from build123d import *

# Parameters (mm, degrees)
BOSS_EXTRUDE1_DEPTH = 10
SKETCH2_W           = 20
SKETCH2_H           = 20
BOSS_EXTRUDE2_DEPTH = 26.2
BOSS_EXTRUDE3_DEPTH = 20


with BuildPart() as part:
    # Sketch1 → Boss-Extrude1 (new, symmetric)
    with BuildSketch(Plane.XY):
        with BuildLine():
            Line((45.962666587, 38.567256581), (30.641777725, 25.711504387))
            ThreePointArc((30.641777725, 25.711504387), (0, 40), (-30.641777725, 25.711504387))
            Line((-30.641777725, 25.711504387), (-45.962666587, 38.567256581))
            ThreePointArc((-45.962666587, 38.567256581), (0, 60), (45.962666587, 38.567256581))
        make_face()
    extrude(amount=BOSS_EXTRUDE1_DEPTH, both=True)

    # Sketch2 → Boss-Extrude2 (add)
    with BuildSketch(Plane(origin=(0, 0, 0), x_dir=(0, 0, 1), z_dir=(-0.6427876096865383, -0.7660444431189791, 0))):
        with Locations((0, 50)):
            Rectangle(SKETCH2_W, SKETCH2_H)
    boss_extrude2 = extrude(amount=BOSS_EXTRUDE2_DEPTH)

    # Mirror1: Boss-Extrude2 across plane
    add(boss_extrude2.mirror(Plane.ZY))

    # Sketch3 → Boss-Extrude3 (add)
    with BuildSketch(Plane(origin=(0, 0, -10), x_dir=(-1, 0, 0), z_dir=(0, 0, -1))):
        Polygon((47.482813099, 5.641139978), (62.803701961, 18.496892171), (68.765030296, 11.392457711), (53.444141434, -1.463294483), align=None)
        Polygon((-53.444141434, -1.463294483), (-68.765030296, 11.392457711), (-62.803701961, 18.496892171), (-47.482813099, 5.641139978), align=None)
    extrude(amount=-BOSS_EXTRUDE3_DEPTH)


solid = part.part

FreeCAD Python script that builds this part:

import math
import FreeCAD as App
import Part
import Sketcher
from FreeCAD import Vector
Q = App.Units.Quantity


def add_polygon(sketch, points):
    """Adds a closed chain of lines whose ends are joined by coincident constraints."""
    first, n = sketch.GeometryCount, len(points)
    for a, b in zip(points, points[1:] + points[:1]):
        sketch.addGeometry(Part.LineSegment(App.Vector(*a, 0), App.Vector(*b, 0)), False)
    for i in range(n):
        sketch.addConstraint(Sketcher.Constraint("Coincident", first + i, 2, first + (i + 1) % n, 1))

doc = App.newDocument("Part")
body = doc.addObject("PartDesign::Body", "Body")

# Sketch on XY plane
sketch1 = body.newObject("Sketcher::SketchObject", "Sketch")
sketch1.AttachmentSupport = (doc.getObject("XY_Plane"), [""])
sketch1.MapMode = "FlatFace"
sketch1.addGeometry(Part.LineSegment(Vector(31, 26, 0), Vector(46, 39, 0)), False)
sketch1.addGeometry(Part.ArcOfCircle(Part.Circle(Vector(0, 0, 0), Vector(0, 0, 1), 60), math.radians(40), math.radians(140)), False)
sketch1.addGeometry(Part.LineSegment(Vector(-46, 39, 0), Vector(-31, 26, 0)), False)
sketch1.addGeometry(Part.ArcOfCircle(Part.Circle(Vector(0, 0, 0), Vector(0, 0, 1), 40), math.radians(40), math.radians(140)), False)
sketch1.addConstraint(Sketcher.Constraint("Coincident", 0, 2, 1, 1))
sketch1.addConstraint(Sketcher.Constraint("Coincident", 1, 2, 2, 1))
sketch1.addConstraint(Sketcher.Constraint("Coincident", 2, 2, 3, 2))
sketch1.addConstraint(Sketcher.Constraint("Coincident", 3, 1, 0, 1))
sketch1.addConstraint(Sketcher.Constraint("Coincident", 1, 3, -1, 1))
sketch1.addConstraint(Sketcher.Constraint("Coincident", 3, 3, -1, 1))
sketch1.addConstraint(Sketcher.Constraint("Horizontal", 0, 2, 1, 2))
sketch1.addConstraint(Sketcher.Constraint("Horizontal", 2, 2, 3, 1))
sketch1.addConstraint(Sketcher.Constraint("Radius", 1, Q("60 mm")))
sketch1.addConstraint(Sketcher.Constraint("Radius", 3, Q("40 mm")))
sketch1.addConstraint(Sketcher.Constraint("Angle", 0, Q("40 deg")))
sketch1.addConstraint(Sketcher.Constraint("DistanceX", -1, 1, 0, 2, Q("45.962667 mm")))
pad1 = body.newObject("PartDesign::Pad", "Pad")
pad1.Profile = sketch1
pad1.Length = 20
pad1.Midplane = True

# Sketch on an angled plane
sketch2 = body.newObject("Sketcher::SketchObject", "Sketch001")
sketch2.Placement = App.Placement(Vector(0, 0, 0), App.Rotation(Vector(0, 0, 1), Vector(-0.766044443, 0.64278761, 0), Vector(-0.64278761, -0.766044443, 0), "ZXY"))
add_polygon(sketch2, [(-10, 60), (-10, 40), (10, 40), (10, 60)])  # lines 0-3
sketch2.addConstraint(Sketcher.Constraint("Vertical", 0))
sketch2.addConstraint(Sketcher.Constraint("Horizontal", 1))
sketch2.addConstraint(Sketcher.Constraint("Vertical", 2))
sketch2.addConstraint(Sketcher.Constraint("Horizontal", 3))
sketch2.addConstraint(Sketcher.Constraint("Equal", 3, 0))
sketch2.addConstraint(Sketcher.Constraint("DistanceX", 1, 1, 1, 2, Q("20 mm")))
sketch2.addConstraint(Sketcher.Constraint("DistanceX", 0, 2, -1, 1, Q("10 mm")))
sketch2.addConstraint(Sketcher.Constraint("DistanceY", -1, 1, 0, 2, Q("40 mm")))
pad2 = body.newObject("PartDesign::Pad", "Pad001")
pad2.Profile = sketch2
pad2.Length = 26.2
doc.recompute()

mirrored = body.newObject("PartDesign::Mirrored", "Mirrored")
mirrored.Originals = [pad2]
mirrored.MirrorPlane = (doc.getObject("YZ_Plane"), [""])
body.Tip = mirrored

# Sketch on XY plane
sketch3 = body.newObject("Sketcher::SketchObject", "Sketch002")
sketch3.AttachmentSupport = (doc.getObject("XY_Plane"), [""])
sketch3.MapMode = "FlatFace"
sketch3.AttachmentOffset = App.Placement(Vector(0, 0, -10), App.Rotation())
add_polygon(sketch3, [(-63, 18), (-47, 6), (-53, -1), (-69, 11)])  # lines 0-3
add_polygon(sketch3, [(69, 11), (53, -1), (47, 6), (63, 18)])  # lines 4-7
sketch3.addConstraint(Sketcher.Constraint("Symmetric", 1, 2, 4, 2, -2))
sketch3.addConstraint(Sketcher.Constraint("Symmetric", 0, 2, 5, 2, -2))
sketch3.addConstraint(Sketcher.Constraint("Symmetric", 3, 2, 6, 2, -2))
sketch3.addConstraint(Sketcher.Constraint("Symmetric", 2, 2, 7, 2, -2))
sketch3.addConstraint(Sketcher.Constraint("Perpendicular", 0, 1))
sketch3.addConstraint(Sketcher.Constraint("Perpendicular", 1, 2))
sketch3.addConstraint(Sketcher.Constraint("Perpendicular", 2, 3))
sketch3.addConstraint(Sketcher.Constraint("Angle", 0, Q("-40 deg")))
sketch3.addConstraint(Sketcher.Constraint("Distance", 0, Q("20 mm")))
sketch3.addConstraint(Sketcher.Constraint("DistanceX", 3, 2, -1, 1, Q("62.803702 mm")))
sketch3.addConstraint(Sketcher.Constraint("Distance", 1, Q("9.274181 mm")))
sketch3.addConstraint(Sketcher.Constraint("DistanceY", -1, 1, 0, 2, Q("5.64114 mm")))
pad3 = body.newObject("PartDesign::Pad", "Pad002")
pad3.Profile = sketch3
pad3.Length = 20

doc.recompute()
